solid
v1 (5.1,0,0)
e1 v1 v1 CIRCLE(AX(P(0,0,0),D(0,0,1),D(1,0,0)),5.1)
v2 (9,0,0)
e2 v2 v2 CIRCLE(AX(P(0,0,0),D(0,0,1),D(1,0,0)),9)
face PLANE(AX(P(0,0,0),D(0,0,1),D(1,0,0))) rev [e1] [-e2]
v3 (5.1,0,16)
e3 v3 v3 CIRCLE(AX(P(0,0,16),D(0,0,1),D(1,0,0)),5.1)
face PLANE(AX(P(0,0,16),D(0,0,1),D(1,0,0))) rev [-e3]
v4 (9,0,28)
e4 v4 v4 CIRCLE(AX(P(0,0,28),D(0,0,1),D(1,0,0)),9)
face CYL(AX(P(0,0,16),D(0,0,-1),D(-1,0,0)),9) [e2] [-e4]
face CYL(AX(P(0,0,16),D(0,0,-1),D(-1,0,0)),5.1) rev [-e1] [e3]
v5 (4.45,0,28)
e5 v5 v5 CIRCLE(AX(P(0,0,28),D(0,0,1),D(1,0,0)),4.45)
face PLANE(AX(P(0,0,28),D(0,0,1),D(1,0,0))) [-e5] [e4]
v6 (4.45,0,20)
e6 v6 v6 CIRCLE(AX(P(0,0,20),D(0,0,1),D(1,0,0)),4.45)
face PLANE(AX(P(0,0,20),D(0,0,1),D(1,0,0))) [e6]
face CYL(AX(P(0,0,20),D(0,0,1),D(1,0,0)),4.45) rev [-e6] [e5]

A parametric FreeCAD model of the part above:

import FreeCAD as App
import Part
import Sketcher

V = App.Vector

doc = App.newDocument("Part")
body = doc.addObject("PartDesign::Body", "Body")

sketch1 = body.newObject("Sketcher::SketchObject", "Sketch")
sketch1.AttachmentSupport = (doc.getObject("XY_Plane"), [""])
sketch1.MapMode = "FlatFace"
sketch1.addGeometry(Part.Circle(V(0, 0, 0), V(0, 0, 1), 9), False)
sketch1.addGeometry(Part.Circle(V(0, 0, 0), V(0, 0, 1), 5), False)
sketch1.addConstraint(Sketcher.Constraint("Coincident", 0, 3, -1, 1))
sketch1.addConstraint(Sketcher.Constraint("Coincident", 1, 3, -1, 1))
sketch1.addConstraint(Sketcher.Constraint("Diameter", 0, 18.0))
sketch1.addConstraint(Sketcher.Constraint("Diameter", 1, 10.2))
pad1 = body.newObject("PartDesign::Pad", "Pad")
pad1.Profile = sketch1
pad1.Length = 16

sketch2 = body.newObject("Sketcher::SketchObject", "Sketch001")
sketch2.AttachmentSupport = (doc.getObject("XY_Plane"), [""])
sketch2.MapMode = "FlatFace"
sketch2.AttachmentOffset = App.Placement(V(0, 0, 16), App.Rotation())
sketch2.addGeometry(Part.Circle(V(0, 0, 0), V(0, 0, 1), 9), False)
sketch2.addConstraint(Sketcher.Constraint("Coincident", 0, 3, -1, 1))
sketch2.addConstraint(Sketcher.Constraint("Diameter", 0, 18.0))
pad2 = body.newObject("PartDesign::Pad", "Pad001")
pad2.Profile = sketch2
pad2.Length = 12

sketch3 = body.newObject("Sketcher::SketchObject", "Sketch002")
sketch3.AttachmentSupport = (doc.getObject("XY_Plane"), [""])
sketch3.MapMode = "FlatFace"
sketch3.AttachmentOffset = App.Placement(V(0, 0, 28), App.Rotation())
sketch3.addGeometry(Part.Circle(V(0, 0, 0), V(0, 0, 1), 4.5), False)
sketch3.addConstraint(Sketcher.Constraint("Coincident", 0, 3, -1, 1))
sketch3.addConstraint(Sketcher.Constraint("Diameter", 0, 8.9))
pocket1 = body.newObject("PartDesign::Pocket", "Pocket")
pocket1.Profile = sketch3
pocket1.Length = 8

doc.recompute()
